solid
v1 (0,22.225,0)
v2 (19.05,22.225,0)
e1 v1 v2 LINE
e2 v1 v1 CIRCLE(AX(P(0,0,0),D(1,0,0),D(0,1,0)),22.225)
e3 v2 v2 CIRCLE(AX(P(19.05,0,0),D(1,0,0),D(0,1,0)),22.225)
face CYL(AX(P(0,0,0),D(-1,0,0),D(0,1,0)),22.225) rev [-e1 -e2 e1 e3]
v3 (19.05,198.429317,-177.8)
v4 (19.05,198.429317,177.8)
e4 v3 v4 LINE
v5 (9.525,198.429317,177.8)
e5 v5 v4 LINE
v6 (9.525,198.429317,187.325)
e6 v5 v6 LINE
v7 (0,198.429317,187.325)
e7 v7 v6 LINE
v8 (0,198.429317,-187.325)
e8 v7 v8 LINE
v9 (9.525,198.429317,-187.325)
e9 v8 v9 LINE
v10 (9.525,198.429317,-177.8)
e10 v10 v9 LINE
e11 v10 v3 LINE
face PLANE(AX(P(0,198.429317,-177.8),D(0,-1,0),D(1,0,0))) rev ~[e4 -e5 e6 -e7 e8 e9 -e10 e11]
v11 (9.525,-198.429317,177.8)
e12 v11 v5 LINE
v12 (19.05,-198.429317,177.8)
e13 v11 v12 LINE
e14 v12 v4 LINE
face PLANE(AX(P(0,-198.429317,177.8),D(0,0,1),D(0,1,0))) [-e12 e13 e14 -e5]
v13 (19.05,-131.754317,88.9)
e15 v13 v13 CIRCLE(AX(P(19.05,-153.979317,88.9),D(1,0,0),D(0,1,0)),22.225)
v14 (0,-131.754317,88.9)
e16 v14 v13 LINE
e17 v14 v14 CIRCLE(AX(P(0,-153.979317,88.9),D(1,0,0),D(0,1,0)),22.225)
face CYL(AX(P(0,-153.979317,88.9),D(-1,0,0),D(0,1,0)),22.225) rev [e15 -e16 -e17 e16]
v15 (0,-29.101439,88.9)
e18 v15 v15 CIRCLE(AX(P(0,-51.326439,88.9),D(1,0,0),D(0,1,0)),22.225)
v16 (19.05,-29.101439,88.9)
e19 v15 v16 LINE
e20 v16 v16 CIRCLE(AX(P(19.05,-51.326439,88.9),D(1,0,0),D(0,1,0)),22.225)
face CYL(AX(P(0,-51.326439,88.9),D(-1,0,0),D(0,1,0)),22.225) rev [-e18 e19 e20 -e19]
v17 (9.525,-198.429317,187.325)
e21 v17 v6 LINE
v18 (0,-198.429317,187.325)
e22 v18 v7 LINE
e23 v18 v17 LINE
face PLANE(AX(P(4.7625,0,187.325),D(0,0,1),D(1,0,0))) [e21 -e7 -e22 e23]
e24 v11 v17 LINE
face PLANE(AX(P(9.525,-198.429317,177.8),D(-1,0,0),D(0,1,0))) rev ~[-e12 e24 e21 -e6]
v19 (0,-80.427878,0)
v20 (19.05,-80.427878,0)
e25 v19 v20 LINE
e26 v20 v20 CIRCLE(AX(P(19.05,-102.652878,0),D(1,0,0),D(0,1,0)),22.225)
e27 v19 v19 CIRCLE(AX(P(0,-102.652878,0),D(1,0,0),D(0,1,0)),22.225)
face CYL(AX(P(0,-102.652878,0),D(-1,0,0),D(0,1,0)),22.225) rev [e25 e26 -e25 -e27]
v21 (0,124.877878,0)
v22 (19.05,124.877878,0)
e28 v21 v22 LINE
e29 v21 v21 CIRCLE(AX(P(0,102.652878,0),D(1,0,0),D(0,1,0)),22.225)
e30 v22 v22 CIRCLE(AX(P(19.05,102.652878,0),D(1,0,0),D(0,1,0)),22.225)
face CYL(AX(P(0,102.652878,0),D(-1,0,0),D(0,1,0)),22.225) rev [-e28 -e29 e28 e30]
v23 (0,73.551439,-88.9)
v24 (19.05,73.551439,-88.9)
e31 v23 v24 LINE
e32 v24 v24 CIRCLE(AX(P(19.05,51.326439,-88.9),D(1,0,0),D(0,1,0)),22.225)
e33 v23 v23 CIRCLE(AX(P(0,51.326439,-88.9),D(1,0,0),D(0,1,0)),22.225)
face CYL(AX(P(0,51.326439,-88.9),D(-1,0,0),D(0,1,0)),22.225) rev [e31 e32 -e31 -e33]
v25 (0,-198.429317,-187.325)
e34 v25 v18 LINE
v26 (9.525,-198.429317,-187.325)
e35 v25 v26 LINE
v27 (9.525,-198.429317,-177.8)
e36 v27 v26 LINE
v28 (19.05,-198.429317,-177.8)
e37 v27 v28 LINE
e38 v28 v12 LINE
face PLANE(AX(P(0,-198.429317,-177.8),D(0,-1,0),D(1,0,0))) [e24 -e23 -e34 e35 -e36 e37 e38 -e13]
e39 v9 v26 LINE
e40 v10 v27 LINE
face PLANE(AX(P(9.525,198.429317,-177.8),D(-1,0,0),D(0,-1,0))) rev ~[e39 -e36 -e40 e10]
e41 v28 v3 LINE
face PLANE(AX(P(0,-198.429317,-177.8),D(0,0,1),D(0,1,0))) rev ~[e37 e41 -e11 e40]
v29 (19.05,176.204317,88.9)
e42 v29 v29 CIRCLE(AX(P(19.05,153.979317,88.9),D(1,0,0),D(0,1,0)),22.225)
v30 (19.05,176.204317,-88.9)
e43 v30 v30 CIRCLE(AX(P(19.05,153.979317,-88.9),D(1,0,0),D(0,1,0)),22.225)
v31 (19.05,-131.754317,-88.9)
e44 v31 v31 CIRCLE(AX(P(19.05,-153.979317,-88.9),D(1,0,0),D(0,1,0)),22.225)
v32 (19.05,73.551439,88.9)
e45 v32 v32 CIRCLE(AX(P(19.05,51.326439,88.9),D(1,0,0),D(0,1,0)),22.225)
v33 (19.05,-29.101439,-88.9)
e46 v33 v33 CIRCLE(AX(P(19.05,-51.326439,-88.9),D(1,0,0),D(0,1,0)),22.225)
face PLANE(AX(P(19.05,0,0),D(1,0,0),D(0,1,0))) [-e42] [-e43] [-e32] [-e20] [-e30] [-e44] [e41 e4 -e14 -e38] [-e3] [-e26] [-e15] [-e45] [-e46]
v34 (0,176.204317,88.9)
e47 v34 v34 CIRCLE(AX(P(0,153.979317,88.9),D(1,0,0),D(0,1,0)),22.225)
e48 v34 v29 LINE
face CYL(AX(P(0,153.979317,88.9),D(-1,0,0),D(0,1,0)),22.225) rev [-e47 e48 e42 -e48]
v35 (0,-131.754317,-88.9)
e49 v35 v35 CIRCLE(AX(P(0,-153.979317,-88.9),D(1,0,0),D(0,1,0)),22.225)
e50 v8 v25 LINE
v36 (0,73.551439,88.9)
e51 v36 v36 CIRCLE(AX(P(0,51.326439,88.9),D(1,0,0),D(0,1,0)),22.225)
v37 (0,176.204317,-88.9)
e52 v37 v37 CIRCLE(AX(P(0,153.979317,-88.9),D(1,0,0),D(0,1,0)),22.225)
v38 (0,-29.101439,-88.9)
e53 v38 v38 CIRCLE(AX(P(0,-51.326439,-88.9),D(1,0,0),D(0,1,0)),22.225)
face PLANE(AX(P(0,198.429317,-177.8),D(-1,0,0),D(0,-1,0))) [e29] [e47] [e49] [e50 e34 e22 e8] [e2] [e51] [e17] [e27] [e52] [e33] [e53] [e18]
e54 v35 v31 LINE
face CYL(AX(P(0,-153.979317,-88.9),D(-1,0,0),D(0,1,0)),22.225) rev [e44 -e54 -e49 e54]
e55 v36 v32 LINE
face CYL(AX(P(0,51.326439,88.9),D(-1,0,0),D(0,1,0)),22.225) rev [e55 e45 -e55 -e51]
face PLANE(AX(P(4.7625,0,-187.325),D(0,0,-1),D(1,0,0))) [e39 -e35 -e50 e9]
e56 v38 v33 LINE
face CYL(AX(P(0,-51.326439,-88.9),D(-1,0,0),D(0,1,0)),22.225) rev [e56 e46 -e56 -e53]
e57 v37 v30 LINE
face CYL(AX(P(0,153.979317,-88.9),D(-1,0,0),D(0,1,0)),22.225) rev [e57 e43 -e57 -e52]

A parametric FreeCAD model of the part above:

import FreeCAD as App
import Part
import Sketcher
Q = App.Units.Quantity


def add_polygon(sketch, points):
    """Adds a closed chain of lines whose ends are joined by coincident constraints."""
    first, n = sketch.GeometryCount, len(points)
    for a, b in zip(points, points[1:] + points[:1]):
        sketch.addGeometry(Part.LineSegment(App.Vector(*a, 0), App.Vector(*b, 0)), False)
    for i in range(n):
        sketch.addConstraint(Sketcher.Constraint("Coincident", first + i, 2, first + (i + 1) % n, 1))

doc = App.newDocument("Part")
body = doc.addObject("PartDesign::Body", "Body")

# Sketch on YZ plane
sketch1 = body.newObject("Sketcher::SketchObject", "Sketch")
sketch1.AttachmentSupport = (doc.getObject("YZ_Plane"), [""])
sketch1.MapMode = "FlatFace"
add_polygon(sketch1, [(-198.429317, 177.8), (-198.429317, -177.8), (198.429317, -177.8), (198.429317, 177.8)])  # lines 0-3
sketch1.addGeometry(Part.Circle(App.Vector(-153.979317, -88.9, 0), App.Vector(0, 0, 1), 22.225), False)  # 4
sketch1.addGeometry(Part.Circle(App.Vector(-51.326439, -88.9, 0), App.Vector(0, 0, 1), 22.225), False)  # 5
sketch1.addGeometry(Part.Circle(App.Vector(51.326439, -88.9, 0), App.Vector(0, 0, 1), 22.225), False)  # 6
sketch1.addGeometry(Part.Circle(App.Vector(153.979317, -88.9, 0), App.Vector(0, 0, 1), 22.225), False)  # 7
sketch1.addGeometry(Part.Circle(App.Vector(-102.652878, 0, 0), App.Vector(0, 0, 1), 22.225), False)  # 8
sketch1.addGeometry(Part.Circle(App.Vector(-153.979317, 88.9, 0), App.Vector(0, 0, 1), 22.225), False)  # 9
sketch1.addGeometry(Part.Circle(App.Vector(-51.326439, 88.9, 0), App.Vector(0, 0, 1), 22.225), False)  # 10
sketch1.addGeometry(Part.Circle(App.Vector(0, 0, 0), App.Vector(0, 0, 1), 22.225), False)  # 11
sketch1.addGeometry(Part.Circle(App.Vector(102.652878, 0, 0), App.Vector(0, 0, 1), 22.225), False)  # 12
sketch1.addGeometry(Part.Circle(App.Vector(51.326439, 88.9, 0), App.Vector(0, 0, 1), 22.225), False)  # 13
sketch1.addGeometry(Part.Circle(App.Vector(153.979317, 88.9, 0), App.Vector(0, 0, 1), 22.225), False)  # 14
sketch1.addConstraint([
    Sketcher.Constraint("Vertical", 0),
    Sketcher.Constraint("Horizontal", 1),
    Sketcher.Constraint("Vertical", 2),
    Sketcher.Constraint("Horizontal", 3),
    Sketcher.Constraint("Coincident", 11, 3, -1, 1),
    Sketcher.Constraint("Equal", 4, 5),
    Sketcher.Constraint("Equal", 5, 6),
    Sketcher.Constraint("Equal", 6, 7),
    Sketcher.Constraint("Equal", 7, 8),
    Sketcher.Constraint("Equal", 8, 9),
    Sketcher.Constraint("Equal", 9, 10),
    Sketcher.Constraint("Equal", 10, 11),
    Sketcher.Constraint("Equal", 11, 12),
    Sketcher.Constraint("Equal", 12, 13),
    Sketcher.Constraint("Equal", 13, 14),
    Sketcher.Constraint("Symmetric", 7, 3, 9, 3, -1, 1),
    Sketcher.Constraint("Symmetric", 6, 3, 10, 3, -1, 1),
    Sketcher.Constraint("Symmetric", 8, 3, 12, 3, -1, 1),
    Sketcher.Constraint("Symmetric", 5, 3, 13, 3, -1, 1),
    Sketcher.Constraint("Symmetric", 4, 3, 14, 3, -1, 1),
    Sketcher.Constraint("Symmetric", 0, 2, 2, 2, -1, 1),
    Sketcher.Constraint("Symmetric", 5, 3, 6, 3, -2),
    Sketcher.Constraint("Symmetric", 4, 3, 7, 3, -2),
    Sketcher.Constraint("PointOnObject", 8, 3, -1),
    Sketcher.Constraint("Horizontal", 4, 3, 5, 3),
    Sketcher.Constraint("Diameter", 4, Q("1.75 in")),
    Sketcher.Constraint("DistanceY", 0, 2, 0, 1, Q("14 in")),
    Sketcher.Constraint("DistanceY", 4, 3, 9, 3, Q("7 in")),
    Sketcher.Constraint("DistanceX", 0, 2, 4, 3, Q("1.75 in")),
    Sketcher.Constraint("DistanceX", 1, 1, 1, 2, 396.858634),
    Sketcher.Constraint("DistanceX", 5, 3, -1, 1, 51.326439),
    Sketcher.Constraint("DistanceX", 8, 3, -1, 1, 102.652878),
])
pad1 = body.newObject("PartDesign::Pad", "Pad")
pad1.Profile = sketch1
pad1.Length = Q("0.75 in")

# Sketch on XY plane
sketch2 = body.newObject("Sketcher::SketchObject", "Sketch001")
sketch2.AttachmentSupport = (doc.getObject("XY_Plane"), [""])
sketch2.MapMode = "FlatFace"
sketch2.AttachmentOffset = App.Placement(App.Vector(0, 0, 7 * 25.4), App.Rotation())
add_polygon(sketch2, [(0, 198.429317), (0, -198.429317), (9.525, -198.429317), (9.525, 198.429317)])  # lines 0-3
sketch2.addConstraint([
    Sketcher.Constraint("Vertical", 0),
    Sketcher.Constraint("Horizontal", 1),
    Sketcher.Constraint("Vertical", 2),
    Sketcher.Constraint("Horizontal", 3),
    Sketcher.Constraint("Symmetric", 0, 2, 3, 2, -1, 1),
    Sketcher.Constraint("DistanceX", 1, 1, 1, 2, Q("0.375 in")),
    Sketcher.Constraint("DistanceY", 0, 2, 0, 1, 396.858634),
])
pad2 = body.newObject("PartDesign::Pad", "Pad001")
pad2.Profile = sketch2
pad2.Length = Q("0.375 in")

# Sketch on XY plane
sketch3 = body.newObject("Sketcher::SketchObject", "Sketch002")
sketch3.AttachmentSupport = (doc.getObject("XY_Plane"), [""])
sketch3.MapMode = "FlatFace"
sketch3.AttachmentOffset = App.Placement(App.Vector(0, 0, -7 * 25.4), App.Rotation())
add_polygon(sketch3, [(0, -198.429317), (0, 198.429317), (9.525, 198.429317), (9.525, -198.429317)])  # lines 0-3
sketch3.addConstraint([
    Sketcher.Constraint("Vertical", 0),
    Sketcher.Constraint("Horizontal", 1),
    Sketcher.Constraint("Vertical", 2),
    Sketcher.Constraint("Horizontal", 3),
    Sketcher.Constraint("Symmetric", 0, 2, 3, 2, -1, 1),
    Sketcher.Constraint("DistanceX", 1, 1, 1, 2, Q("0.375 in")),
    Sketcher.Constraint("DistanceY", 0, 1, 0, 2, 396.858634),
])
pad3 = body.newObject("PartDesign::Pad", "Pad002")
pad3.Profile = sketch3
pad3.Length = Q("0.375 in")
pad3.Reversed = True

doc.recompute()
